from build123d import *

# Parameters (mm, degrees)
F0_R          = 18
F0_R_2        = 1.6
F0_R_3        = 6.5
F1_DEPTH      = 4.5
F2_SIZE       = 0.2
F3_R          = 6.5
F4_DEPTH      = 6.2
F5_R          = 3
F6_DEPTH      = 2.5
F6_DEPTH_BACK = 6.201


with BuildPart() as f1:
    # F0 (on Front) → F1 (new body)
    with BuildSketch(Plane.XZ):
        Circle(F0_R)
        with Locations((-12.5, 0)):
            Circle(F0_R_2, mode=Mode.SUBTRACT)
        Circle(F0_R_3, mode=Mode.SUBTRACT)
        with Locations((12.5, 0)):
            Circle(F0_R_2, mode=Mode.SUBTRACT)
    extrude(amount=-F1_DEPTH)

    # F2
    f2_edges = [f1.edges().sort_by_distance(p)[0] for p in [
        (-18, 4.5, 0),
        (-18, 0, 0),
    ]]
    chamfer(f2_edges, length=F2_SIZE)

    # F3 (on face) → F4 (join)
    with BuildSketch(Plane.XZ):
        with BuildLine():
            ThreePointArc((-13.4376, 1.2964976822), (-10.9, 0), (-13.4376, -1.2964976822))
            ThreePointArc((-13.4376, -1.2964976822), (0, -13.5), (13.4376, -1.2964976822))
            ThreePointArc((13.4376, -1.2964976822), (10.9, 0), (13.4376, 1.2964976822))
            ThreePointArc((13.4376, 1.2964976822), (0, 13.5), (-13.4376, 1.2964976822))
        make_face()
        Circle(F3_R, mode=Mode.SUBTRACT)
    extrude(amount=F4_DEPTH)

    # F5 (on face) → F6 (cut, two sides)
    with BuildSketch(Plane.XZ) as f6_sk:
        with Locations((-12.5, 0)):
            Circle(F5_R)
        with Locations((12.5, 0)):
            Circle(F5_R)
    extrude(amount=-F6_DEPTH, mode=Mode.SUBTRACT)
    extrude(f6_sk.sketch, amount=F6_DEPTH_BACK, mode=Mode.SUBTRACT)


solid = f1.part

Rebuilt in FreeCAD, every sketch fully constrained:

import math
import FreeCAD as App
import Part
import Sketcher

V = App.Vector
Q = App.Units.Quantity


def edges_at(feature, points):
    """Names of the edges that pass closest to the given points."""
    edges = feature.Shape.Edges
    near = lambda p: min(range(len(edges)), key=lambda i: edges[i].distToShape(Part.Vertex(*p))[0])
    return sorted({f"Edge{near(p) + 1}" for p in points})

doc = App.newDocument("Part")
params = doc.addObject("Spreadsheet::Sheet", "Params")
for row, (alias, value) in enumerate([
    ("sketch1_diameter", "36 mm"),
    ("sketch1_diameter2", "13 mm"),
    ("sketch1_diameter3", "3.2 mm"),
    ("pad1_length", "4.5 mm"),
    ("chamfer_size", "0.2 mm"),
    ("sketch2_diameter", "13 mm"),
    ("sketch2_radius", "1.6 mm"),
    ("sketch2_radius2", "13.5 mm"),
    ("pad2_length", "6.2 mm"),
    ("sketch3_diameter", "6 mm"),
    ("pocket1_length", "2.5 mm"),
    ("pocket1_length2", "6.201 mm"),
], start=1):
    params.set(f"A{row}", alias)
    params.set(f"B{row}", "=" + value)
    params.setAlias(f"B{row}", alias)

body = doc.addObject("PartDesign::Body", "Body")

sketch1 = body.newObject("Sketcher::SketchObject", "Sketch")
sketch1.AttachmentSupport = (doc.getObject("XZ_Plane"), [""])
sketch1.MapMode = "FlatFace"
sketch1.addGeometry(Part.Circle(V(0, 0, 0), V(0, 0, 1), 18), False)
sketch1.addGeometry(Part.Circle(V(-12.5, 0, 0), V(0, 0, 1), 1.6), False)
sketch1.addGeometry(Part.Circle(V(0, 0, 0), V(0, 0, 1), 6.5), False)
sketch1.addGeometry(Part.Circle(V(12.5, 0, 0), V(0, 0, 1), 1.6), False)
sketch1.addConstraint(Sketcher.Constraint("Coincident", 0, 3, -1, 1))
sketch1.addConstraint(Sketcher.Constraint("Coincident", 2, 3, -1, 1))
sketch1.addConstraint(Sketcher.Constraint("Equal", 1, 3))
sketch1.addConstraint(Sketcher.Constraint("Symmetric", 1, 3, 3, 3, -1, 1))
sketch1.addConstraint(Sketcher.Constraint("PointOnObject", 1, 3, -1))
sketch1.addConstraint(Sketcher.Constraint("Diameter", 0, Q("36 mm")))
sketch1.addConstraint(Sketcher.Constraint("Diameter", 2, Q("13 mm")))
sketch1.addConstraint(Sketcher.Constraint("Diameter", 1, Q("3.2 mm")))
sketch1.addConstraint(Sketcher.Constraint("DistanceX", 1, 3, 3, 3, Q("25 mm")))
sketch1.setExpression("Constraints[5]", "Params.sketch1_diameter")
sketch1.setExpression("Constraints[6]", "Params.sketch1_diameter2")
sketch1.setExpression("Constraints[7]", "Params.sketch1_diameter3")
pad1 = body.newObject("PartDesign::Pad", "Pad")
pad1.Profile = sketch1
pad1.setExpression("Length", "Params.pad1_length")
pad1.Reversed = True
doc.recompute()

chamfer = body.newObject("PartDesign::Chamfer", "Chamfer")
chamfer.Base = (pad1, edges_at(pad1, [(-18, 4.5, 0), (-18, 0, 0)]))
chamfer.setExpression("Size", "Params.chamfer_size")

sketch2 = body.newObject("Sketcher::SketchObject", "Sketch001")
sketch2.AttachmentSupport = (doc.getObject("XZ_Plane"), [""])
sketch2.MapMode = "FlatFace"
sketch2.addGeometry(Part.ArcOfCircle(Part.Circle(V(-12.5, 0, 0), V(0, 0, 1), 1.6), math.radians(-126), math.radians(126)), False)
sketch2.addGeometry(Part.ArcOfCircle(Part.Circle(V(0, 0, 0), V(0, 0, 1), 13.5), math.radians(-174), math.radians(-6)), False)
sketch2.addGeometry(Part.ArcOfCircle(Part.Circle(V(12.5, 0, 0), V(0, 0, 1), 1.6), math.radians(54), math.radians(306)), False)
sketch2.addGeometry(Part.ArcOfCircle(Part.Circle(V(0, 0, 0), V(0, 0, 1), 13.5), math.radians(6), math.radians(174)), False)
sketch2.addGeometry(Part.Circle(V(0, 0, 0), V(0, 0, 1), 6.5), False)
sketch2.addConstraint(Sketcher.Constraint("Coincident", 0, 1, 1, 1))
sketch2.addConstraint(Sketcher.Constraint("Coincident", 1, 2, 2, 2))
sketch2.addConstraint(Sketcher.Constraint("Coincident", 2, 1, 3, 1))
sketch2.addConstraint(Sketcher.Constraint("Coincident", 3, 2, 0, 2))
sketch2.addConstraint(Sketcher.Constraint("Coincident", 1, 3, -1, 1))
sketch2.addConstraint(Sketcher.Constraint("Coincident", 3, 3, -1, 1))
sketch2.addConstraint(Sketcher.Constraint("Coincident", 4, 3, -1, 1))
sketch2.addConstraint(Sketcher.Constraint("Equal", 0, 2))
sketch2.addConstraint(Sketcher.Constraint("Equal", 1, 3))
sketch2.addConstraint(Sketcher.Constraint("Symmetric", 0, 3, 2, 3, -1, 1))
sketch2.addConstraint(Sketcher.Constraint("PointOnObject", 0, 3, -1))
sketch2.addConstraint(Sketcher.Constraint("Diameter", 4, Q("13 mm")))
sketch2.addConstraint(Sketcher.Constraint("Radius", 0, Q("1.6 mm")))
sketch2.addConstraint(Sketcher.Constraint("Radius", 1, Q("13.5 mm")))
sketch2.addConstraint(Sketcher.Constraint("DistanceX", 0, 3, 2, 3, Q("25 mm")))
sketch2.setExpression("Constraints[11]", "Params.sketch2_diameter")
sketch2.setExpression("Constraints[12]", "Params.sketch2_radius")
sketch2.setExpression("Constraints[13]", "Params.sketch2_radius2")
pad2 = body.newObject("PartDesign::Pad", "Pad001")
pad2.Profile = sketch2
pad2.setExpression("Length", "Params.pad2_length")

sketch3 = body.newObject("Sketcher::SketchObject", "Sketch002")
sketch3.AttachmentSupport = (doc.getObject("XZ_Plane"), [""])
sketch3.MapMode = "FlatFace"
sketch3.addGeometry(Part.Circle(V(-12.5, 0, 0), V(0, 0, 1), 3), False)
sketch3.addGeometry(Part.Circle(V(12.5, 0, 0), V(0, 0, 1), 3), False)
sketch3.addConstraint(Sketcher.Constraint("Equal", 0, 1))
sketch3.addConstraint(Sketcher.Constraint("Symmetric", 0, 3, 1, 3, -1, 1))
sketch3.addConstraint(Sketcher.Constraint("PointOnObject", 0, 3, -1))
sketch3.addConstraint(Sketcher.Constraint("Diameter", 0, Q("6 mm")))
sketch3.addConstraint(Sketcher.Constraint("DistanceX", 0, 3, 1, 3, Q("25 mm")))
sketch3.setExpression("Constraints[3]", "Params.sketch3_diameter")
pocket1 = body.newObject("PartDesign::Pocket", "Pocket")
pocket1.Profile = sketch3
pocket1.Type = "TwoLengths"
pocket1.setExpression("Length", "Params.pocket1_length")
pocket1.setExpression("Length2", "Params.pocket1_length2")

doc.recompute()
